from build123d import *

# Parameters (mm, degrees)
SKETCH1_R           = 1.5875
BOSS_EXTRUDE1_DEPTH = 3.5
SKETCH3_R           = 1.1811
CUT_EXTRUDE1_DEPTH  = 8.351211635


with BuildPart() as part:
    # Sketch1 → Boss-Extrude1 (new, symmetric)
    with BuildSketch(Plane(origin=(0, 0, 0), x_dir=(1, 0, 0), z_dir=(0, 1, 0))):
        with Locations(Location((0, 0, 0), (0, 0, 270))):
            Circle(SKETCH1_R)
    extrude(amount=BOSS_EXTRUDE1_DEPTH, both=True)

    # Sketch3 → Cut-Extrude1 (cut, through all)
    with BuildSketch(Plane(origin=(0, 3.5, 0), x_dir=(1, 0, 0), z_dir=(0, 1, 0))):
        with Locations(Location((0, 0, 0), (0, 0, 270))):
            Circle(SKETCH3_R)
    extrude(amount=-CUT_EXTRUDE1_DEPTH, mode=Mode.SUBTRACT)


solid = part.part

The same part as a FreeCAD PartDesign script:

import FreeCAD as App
import Part
import Sketcher
Q = App.Units.Quantity

doc = App.newDocument("Part")
body = doc.addObject("PartDesign::Body", "Body")

# Sketch on XZ plane
sketch1 = doc.addObject("Sketcher::SketchObject", "Sketch")
body.addObject(sketch1)
sketch1.AttachmentSupport = (doc.XZ_Plane, [""])
sketch1.MapMode = "FlatFace"
sketch1.addGeometry(Part.Circle(App.Vector(0, 0, 0), App.Vector(0, 0, 1), 1.5875), False)
sketch1.addConstraint([
    Sketcher.Constraint("Coincident", 0, 3, -1, 1),
    Sketcher.Constraint("Diameter", 0, Q("0.125 in")),
])
pad1 = doc.addObject("PartDesign::Pad", "Pad")
body.addObject(pad1)
pad1.Profile = sketch1
pad1.Length = 7
pad1.Midplane = True

# Sketch on XZ plane
sketch2 = doc.addObject("Sketcher::SketchObject", "Sketch001")
body.addObject(sketch2)
sketch2.AttachmentSupport = (doc.XZ_Plane, [""])
sketch2.MapMode = "FlatFace"
sketch2.AttachmentOffset = App.Placement(App.Vector(0, 0, -3.5), App.Rotation())
sketch2.addGeometry(Part.Circle(App.Vector(0, 0, 0), App.Vector(0, 0, 1), 1.1811), False)
sketch2.addConstraint([
    Sketcher.Constraint("Coincident", 0, 3, -1, 1),
    Sketcher.Constraint("Diameter", 0, Q("0.093 in")),
])
pocket1 = doc.addObject("PartDesign::Pocket", "Pocket")
body.addObject(pocket1)
pocket1.Profile = sketch2
pocket1.Type = "ThroughAll"
pocket1.Reversed = True

doc.recompute()
